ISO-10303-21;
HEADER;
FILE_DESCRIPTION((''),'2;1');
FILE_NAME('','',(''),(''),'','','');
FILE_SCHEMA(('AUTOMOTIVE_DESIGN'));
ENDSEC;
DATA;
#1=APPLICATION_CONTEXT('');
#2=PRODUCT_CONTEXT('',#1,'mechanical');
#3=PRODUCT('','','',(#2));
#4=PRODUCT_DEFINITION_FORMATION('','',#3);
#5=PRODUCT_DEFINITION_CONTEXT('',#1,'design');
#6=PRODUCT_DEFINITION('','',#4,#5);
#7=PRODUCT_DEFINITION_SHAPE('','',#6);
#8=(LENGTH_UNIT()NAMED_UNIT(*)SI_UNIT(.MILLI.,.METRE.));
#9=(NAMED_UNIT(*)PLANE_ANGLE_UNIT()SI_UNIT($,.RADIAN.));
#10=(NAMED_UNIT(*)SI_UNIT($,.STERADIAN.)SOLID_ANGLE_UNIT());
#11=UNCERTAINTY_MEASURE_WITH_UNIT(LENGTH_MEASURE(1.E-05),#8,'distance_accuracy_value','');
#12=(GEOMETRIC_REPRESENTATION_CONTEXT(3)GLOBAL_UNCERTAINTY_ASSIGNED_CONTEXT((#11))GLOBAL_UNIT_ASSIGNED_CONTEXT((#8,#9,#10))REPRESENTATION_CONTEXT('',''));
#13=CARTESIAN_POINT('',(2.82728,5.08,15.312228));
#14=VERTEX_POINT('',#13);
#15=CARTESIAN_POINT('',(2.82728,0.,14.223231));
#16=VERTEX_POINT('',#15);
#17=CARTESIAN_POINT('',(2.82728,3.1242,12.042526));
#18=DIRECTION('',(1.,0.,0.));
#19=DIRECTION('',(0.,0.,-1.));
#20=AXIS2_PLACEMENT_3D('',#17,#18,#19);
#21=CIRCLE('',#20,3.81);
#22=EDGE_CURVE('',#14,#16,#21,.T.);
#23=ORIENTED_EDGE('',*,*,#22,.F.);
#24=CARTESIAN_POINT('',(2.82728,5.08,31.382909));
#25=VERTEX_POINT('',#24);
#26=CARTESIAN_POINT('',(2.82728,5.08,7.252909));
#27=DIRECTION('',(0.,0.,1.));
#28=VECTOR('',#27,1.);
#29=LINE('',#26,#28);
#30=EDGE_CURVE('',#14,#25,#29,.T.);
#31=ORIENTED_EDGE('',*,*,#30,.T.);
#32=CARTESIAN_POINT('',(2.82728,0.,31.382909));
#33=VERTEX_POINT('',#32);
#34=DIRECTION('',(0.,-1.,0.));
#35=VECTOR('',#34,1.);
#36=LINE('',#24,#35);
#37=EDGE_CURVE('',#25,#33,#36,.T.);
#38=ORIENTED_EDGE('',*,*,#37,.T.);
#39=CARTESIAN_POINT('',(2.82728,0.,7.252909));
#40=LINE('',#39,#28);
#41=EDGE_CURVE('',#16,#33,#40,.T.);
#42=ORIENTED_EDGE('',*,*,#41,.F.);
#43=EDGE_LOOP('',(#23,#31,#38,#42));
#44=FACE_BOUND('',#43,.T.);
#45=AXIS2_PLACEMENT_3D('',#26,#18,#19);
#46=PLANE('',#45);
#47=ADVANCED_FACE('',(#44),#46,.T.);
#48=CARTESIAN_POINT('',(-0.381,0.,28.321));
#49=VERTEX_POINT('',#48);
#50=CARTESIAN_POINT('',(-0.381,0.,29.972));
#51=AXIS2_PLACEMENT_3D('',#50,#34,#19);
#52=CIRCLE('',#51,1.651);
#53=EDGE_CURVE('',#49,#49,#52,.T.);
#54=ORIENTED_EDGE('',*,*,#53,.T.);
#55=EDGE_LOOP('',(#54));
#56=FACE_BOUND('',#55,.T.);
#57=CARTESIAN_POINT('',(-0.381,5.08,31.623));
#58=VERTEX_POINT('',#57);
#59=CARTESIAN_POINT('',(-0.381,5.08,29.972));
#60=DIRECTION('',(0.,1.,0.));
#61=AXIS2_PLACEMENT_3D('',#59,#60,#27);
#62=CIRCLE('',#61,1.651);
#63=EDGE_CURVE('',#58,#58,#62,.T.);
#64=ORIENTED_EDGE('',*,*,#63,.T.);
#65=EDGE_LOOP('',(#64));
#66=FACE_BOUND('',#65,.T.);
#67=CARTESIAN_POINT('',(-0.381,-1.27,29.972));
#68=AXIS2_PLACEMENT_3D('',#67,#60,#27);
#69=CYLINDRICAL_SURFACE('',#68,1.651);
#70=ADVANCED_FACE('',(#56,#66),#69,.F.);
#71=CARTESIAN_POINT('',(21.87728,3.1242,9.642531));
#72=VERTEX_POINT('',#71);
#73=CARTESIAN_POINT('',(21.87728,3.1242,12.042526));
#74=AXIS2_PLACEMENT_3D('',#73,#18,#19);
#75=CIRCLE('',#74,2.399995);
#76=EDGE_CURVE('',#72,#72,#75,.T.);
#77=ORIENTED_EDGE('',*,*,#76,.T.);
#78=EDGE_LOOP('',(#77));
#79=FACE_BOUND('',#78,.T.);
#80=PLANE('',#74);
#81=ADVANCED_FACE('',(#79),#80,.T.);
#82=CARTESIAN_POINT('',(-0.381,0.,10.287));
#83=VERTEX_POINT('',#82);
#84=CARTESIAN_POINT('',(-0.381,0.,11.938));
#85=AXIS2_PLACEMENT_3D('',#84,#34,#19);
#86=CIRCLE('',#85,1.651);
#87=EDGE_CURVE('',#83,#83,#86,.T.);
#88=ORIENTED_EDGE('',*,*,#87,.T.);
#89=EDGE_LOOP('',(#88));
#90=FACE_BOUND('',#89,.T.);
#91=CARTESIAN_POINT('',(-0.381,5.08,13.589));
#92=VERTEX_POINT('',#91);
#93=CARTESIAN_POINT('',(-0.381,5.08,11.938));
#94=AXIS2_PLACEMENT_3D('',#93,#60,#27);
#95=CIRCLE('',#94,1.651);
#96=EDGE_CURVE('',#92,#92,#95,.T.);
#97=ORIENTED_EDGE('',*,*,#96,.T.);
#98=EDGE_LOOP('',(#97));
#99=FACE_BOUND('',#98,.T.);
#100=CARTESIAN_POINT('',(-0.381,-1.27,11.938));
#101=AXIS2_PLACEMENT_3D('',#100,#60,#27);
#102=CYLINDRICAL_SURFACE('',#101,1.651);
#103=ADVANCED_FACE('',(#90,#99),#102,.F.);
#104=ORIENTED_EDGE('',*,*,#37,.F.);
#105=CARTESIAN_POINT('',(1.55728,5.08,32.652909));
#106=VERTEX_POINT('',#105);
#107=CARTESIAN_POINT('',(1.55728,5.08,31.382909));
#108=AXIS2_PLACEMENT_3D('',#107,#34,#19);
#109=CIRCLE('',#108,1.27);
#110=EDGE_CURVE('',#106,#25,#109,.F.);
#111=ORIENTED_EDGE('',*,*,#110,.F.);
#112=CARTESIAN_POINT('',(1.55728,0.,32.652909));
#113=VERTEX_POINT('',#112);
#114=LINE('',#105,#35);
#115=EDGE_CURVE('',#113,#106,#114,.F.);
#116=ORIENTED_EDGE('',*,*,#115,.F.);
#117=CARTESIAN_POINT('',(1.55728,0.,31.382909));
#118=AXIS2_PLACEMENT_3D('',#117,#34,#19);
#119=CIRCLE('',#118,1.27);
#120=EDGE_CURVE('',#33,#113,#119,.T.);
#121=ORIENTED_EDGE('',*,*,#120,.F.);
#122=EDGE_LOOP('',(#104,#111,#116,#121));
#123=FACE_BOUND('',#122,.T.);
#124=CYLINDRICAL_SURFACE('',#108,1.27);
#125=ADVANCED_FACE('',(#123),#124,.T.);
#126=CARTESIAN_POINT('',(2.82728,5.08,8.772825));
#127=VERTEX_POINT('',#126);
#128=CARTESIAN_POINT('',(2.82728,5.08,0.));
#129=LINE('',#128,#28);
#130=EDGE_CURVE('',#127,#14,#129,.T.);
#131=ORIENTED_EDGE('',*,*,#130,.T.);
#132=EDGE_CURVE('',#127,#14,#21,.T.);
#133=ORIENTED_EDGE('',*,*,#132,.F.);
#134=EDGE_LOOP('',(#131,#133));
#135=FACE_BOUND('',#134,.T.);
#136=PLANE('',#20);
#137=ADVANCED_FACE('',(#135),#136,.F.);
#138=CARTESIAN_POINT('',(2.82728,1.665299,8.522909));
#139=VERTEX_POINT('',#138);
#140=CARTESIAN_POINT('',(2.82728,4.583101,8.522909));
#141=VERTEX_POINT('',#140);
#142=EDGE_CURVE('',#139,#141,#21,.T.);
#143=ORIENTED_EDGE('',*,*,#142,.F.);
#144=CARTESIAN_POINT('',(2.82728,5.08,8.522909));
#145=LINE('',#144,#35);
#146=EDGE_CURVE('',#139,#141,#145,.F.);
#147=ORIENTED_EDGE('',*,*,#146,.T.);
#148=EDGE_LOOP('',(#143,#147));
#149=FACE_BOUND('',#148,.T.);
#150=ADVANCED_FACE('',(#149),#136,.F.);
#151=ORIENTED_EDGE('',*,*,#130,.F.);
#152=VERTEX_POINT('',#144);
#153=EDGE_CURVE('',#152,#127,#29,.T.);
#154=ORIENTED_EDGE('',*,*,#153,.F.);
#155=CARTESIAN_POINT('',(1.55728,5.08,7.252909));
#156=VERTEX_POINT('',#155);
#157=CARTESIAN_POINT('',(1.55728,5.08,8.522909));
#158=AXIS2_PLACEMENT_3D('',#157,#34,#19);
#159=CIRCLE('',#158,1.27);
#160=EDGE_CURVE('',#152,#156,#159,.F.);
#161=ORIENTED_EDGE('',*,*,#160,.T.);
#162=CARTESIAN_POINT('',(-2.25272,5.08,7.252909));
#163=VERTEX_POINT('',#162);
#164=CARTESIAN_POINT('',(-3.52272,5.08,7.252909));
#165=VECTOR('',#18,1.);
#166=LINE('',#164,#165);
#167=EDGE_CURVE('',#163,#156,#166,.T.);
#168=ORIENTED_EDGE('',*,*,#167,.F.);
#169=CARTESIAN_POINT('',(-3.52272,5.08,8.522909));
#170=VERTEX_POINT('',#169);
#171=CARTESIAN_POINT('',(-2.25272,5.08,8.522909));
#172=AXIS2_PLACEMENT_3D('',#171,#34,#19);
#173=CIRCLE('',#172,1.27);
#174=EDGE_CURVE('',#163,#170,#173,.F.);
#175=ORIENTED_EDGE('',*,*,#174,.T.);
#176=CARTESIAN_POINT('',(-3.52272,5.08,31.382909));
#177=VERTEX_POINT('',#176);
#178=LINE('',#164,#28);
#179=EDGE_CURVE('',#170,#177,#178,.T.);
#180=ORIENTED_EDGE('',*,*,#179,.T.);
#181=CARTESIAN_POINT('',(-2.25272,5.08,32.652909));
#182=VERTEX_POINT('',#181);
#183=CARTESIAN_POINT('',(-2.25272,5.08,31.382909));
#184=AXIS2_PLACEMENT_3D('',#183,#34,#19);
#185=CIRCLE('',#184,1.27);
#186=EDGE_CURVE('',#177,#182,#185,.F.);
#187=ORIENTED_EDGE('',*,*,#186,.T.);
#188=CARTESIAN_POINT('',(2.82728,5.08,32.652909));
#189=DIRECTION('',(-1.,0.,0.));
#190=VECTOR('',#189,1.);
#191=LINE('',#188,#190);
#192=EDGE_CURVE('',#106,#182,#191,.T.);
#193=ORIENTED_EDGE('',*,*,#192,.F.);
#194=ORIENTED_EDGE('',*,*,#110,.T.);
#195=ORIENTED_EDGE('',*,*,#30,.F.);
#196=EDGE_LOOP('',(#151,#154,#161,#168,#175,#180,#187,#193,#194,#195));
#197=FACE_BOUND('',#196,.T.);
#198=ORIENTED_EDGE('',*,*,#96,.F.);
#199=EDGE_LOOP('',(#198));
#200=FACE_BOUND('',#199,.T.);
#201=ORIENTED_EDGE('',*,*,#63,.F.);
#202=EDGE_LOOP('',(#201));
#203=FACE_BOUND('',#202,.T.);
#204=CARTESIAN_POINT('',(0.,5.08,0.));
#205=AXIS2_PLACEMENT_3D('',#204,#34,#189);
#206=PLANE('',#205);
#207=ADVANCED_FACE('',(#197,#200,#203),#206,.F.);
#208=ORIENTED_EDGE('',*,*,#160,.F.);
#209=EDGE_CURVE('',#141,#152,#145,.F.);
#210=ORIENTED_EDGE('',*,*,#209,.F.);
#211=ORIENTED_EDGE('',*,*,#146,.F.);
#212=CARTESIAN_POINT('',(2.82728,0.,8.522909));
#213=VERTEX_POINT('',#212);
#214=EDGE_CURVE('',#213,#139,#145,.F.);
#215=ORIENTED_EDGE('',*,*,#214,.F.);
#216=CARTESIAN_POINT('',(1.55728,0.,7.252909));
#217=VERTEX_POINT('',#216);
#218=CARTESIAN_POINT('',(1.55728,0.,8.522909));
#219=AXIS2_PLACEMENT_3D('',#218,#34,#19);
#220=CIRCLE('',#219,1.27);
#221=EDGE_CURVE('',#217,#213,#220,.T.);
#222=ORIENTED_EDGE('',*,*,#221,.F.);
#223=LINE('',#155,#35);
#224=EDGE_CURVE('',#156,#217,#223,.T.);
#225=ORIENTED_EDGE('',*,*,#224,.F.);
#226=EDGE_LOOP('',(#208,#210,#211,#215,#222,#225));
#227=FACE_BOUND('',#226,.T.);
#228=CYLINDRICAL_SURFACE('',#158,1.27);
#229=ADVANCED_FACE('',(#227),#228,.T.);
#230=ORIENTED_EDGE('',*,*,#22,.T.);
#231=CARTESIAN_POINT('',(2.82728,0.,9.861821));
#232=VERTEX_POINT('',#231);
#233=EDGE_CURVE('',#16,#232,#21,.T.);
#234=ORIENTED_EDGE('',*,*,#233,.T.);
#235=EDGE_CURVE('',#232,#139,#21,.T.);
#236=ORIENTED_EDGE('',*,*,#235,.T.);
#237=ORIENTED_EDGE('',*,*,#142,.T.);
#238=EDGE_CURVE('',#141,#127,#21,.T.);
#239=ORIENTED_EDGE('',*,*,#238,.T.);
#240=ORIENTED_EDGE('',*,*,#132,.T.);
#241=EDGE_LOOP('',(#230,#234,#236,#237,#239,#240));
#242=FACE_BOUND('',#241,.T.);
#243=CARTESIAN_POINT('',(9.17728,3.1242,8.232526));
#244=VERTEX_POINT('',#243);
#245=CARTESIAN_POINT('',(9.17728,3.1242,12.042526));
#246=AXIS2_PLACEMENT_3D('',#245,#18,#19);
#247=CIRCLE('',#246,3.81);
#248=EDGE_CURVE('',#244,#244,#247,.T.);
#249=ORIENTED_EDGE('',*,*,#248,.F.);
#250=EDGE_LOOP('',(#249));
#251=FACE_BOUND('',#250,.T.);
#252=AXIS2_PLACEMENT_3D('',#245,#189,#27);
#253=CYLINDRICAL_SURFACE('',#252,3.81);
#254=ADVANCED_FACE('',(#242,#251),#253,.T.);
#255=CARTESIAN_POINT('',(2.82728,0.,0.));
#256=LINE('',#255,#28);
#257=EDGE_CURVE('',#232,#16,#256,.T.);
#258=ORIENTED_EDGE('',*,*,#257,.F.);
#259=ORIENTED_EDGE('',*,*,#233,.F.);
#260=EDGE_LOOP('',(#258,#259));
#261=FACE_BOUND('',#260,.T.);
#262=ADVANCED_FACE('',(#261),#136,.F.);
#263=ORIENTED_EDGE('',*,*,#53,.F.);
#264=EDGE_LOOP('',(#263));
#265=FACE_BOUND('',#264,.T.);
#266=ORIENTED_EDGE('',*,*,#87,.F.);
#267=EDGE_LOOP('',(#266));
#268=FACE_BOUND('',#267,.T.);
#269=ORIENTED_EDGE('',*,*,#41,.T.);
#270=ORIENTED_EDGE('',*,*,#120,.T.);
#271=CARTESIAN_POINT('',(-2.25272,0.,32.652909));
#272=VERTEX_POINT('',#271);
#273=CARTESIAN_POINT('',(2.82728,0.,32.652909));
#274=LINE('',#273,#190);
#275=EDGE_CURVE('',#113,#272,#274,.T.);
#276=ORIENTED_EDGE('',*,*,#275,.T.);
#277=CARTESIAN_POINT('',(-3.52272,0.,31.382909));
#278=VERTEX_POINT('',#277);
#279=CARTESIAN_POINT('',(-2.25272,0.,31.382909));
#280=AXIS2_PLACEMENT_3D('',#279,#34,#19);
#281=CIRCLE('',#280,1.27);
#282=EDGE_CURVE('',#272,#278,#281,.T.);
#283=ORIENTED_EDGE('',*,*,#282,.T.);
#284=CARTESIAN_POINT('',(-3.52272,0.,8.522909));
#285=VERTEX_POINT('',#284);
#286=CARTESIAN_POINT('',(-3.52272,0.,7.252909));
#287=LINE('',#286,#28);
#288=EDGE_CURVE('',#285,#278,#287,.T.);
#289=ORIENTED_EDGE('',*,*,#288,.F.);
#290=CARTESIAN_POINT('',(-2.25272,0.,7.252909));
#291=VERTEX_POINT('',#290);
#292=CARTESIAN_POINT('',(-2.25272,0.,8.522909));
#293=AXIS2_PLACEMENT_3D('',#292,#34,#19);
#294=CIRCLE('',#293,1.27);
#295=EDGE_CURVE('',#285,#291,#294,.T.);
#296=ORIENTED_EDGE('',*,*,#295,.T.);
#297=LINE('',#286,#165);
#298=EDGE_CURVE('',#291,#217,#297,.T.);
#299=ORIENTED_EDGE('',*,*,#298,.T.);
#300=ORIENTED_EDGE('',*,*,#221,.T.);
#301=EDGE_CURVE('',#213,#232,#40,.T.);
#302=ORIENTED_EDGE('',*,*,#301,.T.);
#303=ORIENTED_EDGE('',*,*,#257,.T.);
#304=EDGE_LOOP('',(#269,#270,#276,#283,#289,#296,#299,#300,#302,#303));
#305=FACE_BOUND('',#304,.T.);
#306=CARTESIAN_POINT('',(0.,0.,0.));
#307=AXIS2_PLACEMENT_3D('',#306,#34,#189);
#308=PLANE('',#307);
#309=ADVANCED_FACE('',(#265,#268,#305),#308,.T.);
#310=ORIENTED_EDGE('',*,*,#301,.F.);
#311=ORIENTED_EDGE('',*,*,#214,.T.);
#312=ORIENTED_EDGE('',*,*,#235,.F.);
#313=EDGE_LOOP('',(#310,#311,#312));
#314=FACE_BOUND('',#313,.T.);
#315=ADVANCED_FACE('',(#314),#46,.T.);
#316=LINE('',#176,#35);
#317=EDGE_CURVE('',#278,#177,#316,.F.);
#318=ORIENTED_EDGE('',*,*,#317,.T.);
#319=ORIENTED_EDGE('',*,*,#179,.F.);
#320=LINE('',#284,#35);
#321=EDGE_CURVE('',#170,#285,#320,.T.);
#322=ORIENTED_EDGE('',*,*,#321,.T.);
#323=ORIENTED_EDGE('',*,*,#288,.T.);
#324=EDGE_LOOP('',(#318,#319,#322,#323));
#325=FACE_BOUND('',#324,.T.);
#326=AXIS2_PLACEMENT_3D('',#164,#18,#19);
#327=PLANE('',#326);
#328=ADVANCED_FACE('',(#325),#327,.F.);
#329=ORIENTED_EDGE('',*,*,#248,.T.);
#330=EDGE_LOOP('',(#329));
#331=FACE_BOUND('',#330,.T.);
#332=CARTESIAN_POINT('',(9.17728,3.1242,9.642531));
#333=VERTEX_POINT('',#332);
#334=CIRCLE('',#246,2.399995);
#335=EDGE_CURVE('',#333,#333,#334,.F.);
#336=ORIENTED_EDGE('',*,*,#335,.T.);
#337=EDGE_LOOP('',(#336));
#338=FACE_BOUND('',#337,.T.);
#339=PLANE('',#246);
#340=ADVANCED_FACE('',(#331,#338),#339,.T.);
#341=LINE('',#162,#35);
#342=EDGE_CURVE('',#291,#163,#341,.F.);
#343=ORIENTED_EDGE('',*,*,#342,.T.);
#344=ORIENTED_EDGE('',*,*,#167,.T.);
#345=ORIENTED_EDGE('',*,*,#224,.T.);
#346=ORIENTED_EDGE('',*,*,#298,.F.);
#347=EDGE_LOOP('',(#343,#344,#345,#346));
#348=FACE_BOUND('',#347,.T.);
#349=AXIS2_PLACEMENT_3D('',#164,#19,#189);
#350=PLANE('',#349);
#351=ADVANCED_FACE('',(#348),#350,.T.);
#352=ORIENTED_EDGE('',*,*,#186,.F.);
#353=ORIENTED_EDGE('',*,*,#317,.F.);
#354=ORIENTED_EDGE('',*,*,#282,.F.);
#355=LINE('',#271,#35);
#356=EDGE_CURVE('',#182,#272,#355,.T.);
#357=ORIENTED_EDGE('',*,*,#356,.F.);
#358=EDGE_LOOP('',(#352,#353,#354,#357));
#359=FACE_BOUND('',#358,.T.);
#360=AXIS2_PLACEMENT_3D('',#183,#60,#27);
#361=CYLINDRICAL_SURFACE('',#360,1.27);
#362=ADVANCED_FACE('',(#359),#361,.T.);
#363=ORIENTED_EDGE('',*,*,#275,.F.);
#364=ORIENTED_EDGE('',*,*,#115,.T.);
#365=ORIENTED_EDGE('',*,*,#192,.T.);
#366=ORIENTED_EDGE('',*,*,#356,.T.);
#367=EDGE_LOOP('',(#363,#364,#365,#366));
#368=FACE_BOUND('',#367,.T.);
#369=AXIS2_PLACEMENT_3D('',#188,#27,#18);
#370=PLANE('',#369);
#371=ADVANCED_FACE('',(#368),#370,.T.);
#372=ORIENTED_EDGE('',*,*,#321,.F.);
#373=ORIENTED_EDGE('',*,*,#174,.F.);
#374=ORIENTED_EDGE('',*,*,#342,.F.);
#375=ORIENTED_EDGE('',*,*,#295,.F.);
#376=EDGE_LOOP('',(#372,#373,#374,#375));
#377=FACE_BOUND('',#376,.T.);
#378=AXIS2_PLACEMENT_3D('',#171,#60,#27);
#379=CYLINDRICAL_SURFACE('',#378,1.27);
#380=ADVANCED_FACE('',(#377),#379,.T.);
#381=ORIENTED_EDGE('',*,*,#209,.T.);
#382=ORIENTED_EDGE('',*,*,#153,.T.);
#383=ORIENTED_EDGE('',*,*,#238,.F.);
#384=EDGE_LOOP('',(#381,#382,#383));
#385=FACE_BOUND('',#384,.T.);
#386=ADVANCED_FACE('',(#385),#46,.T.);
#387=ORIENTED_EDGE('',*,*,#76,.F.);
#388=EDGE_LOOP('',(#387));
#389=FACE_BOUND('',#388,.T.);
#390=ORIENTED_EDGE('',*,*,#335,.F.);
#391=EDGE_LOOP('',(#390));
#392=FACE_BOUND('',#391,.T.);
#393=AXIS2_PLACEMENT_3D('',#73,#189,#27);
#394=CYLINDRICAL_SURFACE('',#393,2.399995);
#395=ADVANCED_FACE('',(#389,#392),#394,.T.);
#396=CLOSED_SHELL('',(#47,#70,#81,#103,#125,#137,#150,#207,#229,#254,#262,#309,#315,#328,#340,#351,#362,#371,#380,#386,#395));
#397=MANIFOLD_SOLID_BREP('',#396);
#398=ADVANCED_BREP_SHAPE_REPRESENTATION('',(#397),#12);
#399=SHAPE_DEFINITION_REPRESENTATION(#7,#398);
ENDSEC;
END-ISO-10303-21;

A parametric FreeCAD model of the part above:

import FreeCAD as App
import Part
import Sketcher
from FreeCAD import Vector
Q = App.Units.Quantity


def edges_at(feature, points):
    """Names of the edges that pass closest to the given points."""
    edges = feature.Shape.Edges
    near = lambda p: min(range(len(edges)), key=lambda i: edges[i].distToShape(Part.Vertex(*p))[0])
    return sorted({f"Edge{near(p) + 1}" for p in points})

doc = App.newDocument("Part")
body = doc.addObject("PartDesign::Body", "Body")

# Sketch on XZ plane
sketch1 = body.newObject("Sketcher::SketchObject", "Sketch")
sketch1.AttachmentSupport = (doc.getObject("XZ_Plane"), [""])
sketch1.MapMode = "FlatFace"
sketch1.addGeometry([
    Part.LineSegment(Vector(-4, 7, 0), Vector(-4, 33, 0)),
    Part.LineSegment(Vector(-4, 33, 0), Vector(3, 33, 0)),
    Part.LineSegment(Vector(3, 33, 0), Vector(3, 7, 0)),
    Part.LineSegment(Vector(3, 7, 0), Vector(-4, 7, 0)),
], False)
sketch1.addConstraint([
    Sketcher.Constraint("Coincident", 0, 2, 1, 1),
    Sketcher.Constraint("Coincident", 1, 2, 2, 1),
    Sketcher.Constraint("Coincident", 2, 2, 3, 1),
    Sketcher.Constraint("Coincident", 3, 2, 0, 1),
    Sketcher.Constraint("Vertical", 0),
    Sketcher.Constraint("Horizontal", 1),
    Sketcher.Constraint("Vertical", 2),
    Sketcher.Constraint("Horizontal", 3),
    Sketcher.Constraint("DistanceY", 0, 1, 0, 2, Q("1 in")),
    Sketcher.Constraint("DistanceX", 1, 1, 1, 2, Q("0.25 in")),
    Sketcher.Constraint("DistanceX", 0, 2, -1, 1, Q("3.52272 mm")),
    Sketcher.Constraint("DistanceY", -1, 1, 0, 2, Q("32.652909 mm")),
])
pad1 = body.newObject("PartDesign::Pad", "Pad")
pad1.Profile = sketch1
pad1.Length = Q("0.2 in")
pad1.Reversed = True
doc.recompute()

fillet = body.newObject("PartDesign::Fillet", "Fillet")
fillet.Base = (pad1, edges_at(pad1, [(-3.523, 2.54, 32.653)]))
fillet.Radius = Q("0.05 in")
doc.recompute()

fillet2 = body.newObject("PartDesign::Fillet", "Fillet001")
fillet2.Base = (fillet, edges_at(fillet, [(2.827, 2.54, 32.653)]))
fillet2.Radius = Q("0.05 in")
doc.recompute()

fillet3 = body.newObject("PartDesign::Fillet", "Fillet002")
fillet3.Base = (fillet2, edges_at(fillet2, [(-3.523, 2.54, 7.253), (2.827, 2.54, 7.253)]))
fillet3.Radius = Q("0.05 in")

# Sketch on XZ plane
sketch2 = body.newObject("Sketcher::SketchObject", "Sketch001")
sketch2.AttachmentSupport = (doc.getObject("XZ_Plane"), [""])
sketch2.MapMode = "FlatFace"
sketch2.AttachmentOffset = App.Placement(Vector(0, 0, -0.2 * 25.4), App.Rotation())
sketch2.addGeometry(Part.Circle(Vector(-0.4, 30, 0), Vector(0, 0, 1), 1.7), False)
sketch2.addConstraint([
    Sketcher.Constraint("Diameter", 0, Q("0.13 in")),
    Sketcher.Constraint("DistanceY", -1, 1, 0, 3, Q("1.18 in")),
    Sketcher.Constraint("DistanceX", 0, 3, -1, 1, Q("0.015 in")),
])
pocket1 = body.newObject("PartDesign::Pocket", "Pocket")
pocket1.Profile = sketch2
pocket1.Length = Q("0.25 in")
pocket1.Reversed = True

# Sketch on YZ plane
sketch3 = body.newObject("Sketcher::SketchObject", "Sketch002")
sketch3.AttachmentSupport = (doc.getObject("YZ_Plane"), [""])
sketch3.MapMode = "FlatFace"
sketch3.AttachmentOffset = App.Placement(Vector(0, 0, 2.82728), App.Rotation())
sketch3.addGeometry(Part.Circle(Vector(3.1, 12, 0), Vector(0, 0, 1), 3.8), False)
sketch3.addConstraint([
    Sketcher.Constraint("Diameter", 0, Q("0.3 in")),
    Sketcher.Constraint("DistanceX", -1, 1, 0, 3, Q("0.123 in")),
    Sketcher.Constraint("DistanceY", -1, 1, 0, 3, Q("12.042526 mm")),
])
pad2 = body.newObject("PartDesign::Pad", "Pad001")
pad2.Profile = sketch3
pad2.Length = Q("0.25 in")

# Sketch on YZ plane
sketch4 = body.newObject("Sketcher::SketchObject", "Sketch003")
sketch4.AttachmentSupport = (doc.getObject("YZ_Plane"), [""])
sketch4.MapMode = "FlatFace"
sketch4.AttachmentOffset = App.Placement(Vector(0, 0, 2.82728), App.Rotation())
sketch4.addGeometry(Part.Circle(Vector(3.1, 12, 0), Vector(0, 0, 1), 2.4), False)
sketch4.addConstraint([
    Sketcher.Constraint("Diameter", 0, Q("4.79999 mm")),
    Sketcher.Constraint("DistanceX", -1, 1, 0, 3, Q("0.123 in")),
    Sketcher.Constraint("DistanceY", -1, 1, 0, 3, Q("12.042526 mm")),
])
pad3 = body.newObject("PartDesign::Pad", "Pad002")
pad3.Profile = sketch4
pad3.Length = Q("0.75 in")
doc.recompute()

linearpattern = body.newObject("PartDesign::LinearPattern", "LinearPattern")
linearpattern.Originals = [pocket1]
linearpattern.Direction = (doc.getObject("Z_Axis"), [""])
linearpattern.Mode = "offset"
linearpattern.Offset = Q("0.71 in")
linearpattern.Occurrences = 2
linearpattern.Reversed = True
body.Tip = linearpattern

doc.recompute()
